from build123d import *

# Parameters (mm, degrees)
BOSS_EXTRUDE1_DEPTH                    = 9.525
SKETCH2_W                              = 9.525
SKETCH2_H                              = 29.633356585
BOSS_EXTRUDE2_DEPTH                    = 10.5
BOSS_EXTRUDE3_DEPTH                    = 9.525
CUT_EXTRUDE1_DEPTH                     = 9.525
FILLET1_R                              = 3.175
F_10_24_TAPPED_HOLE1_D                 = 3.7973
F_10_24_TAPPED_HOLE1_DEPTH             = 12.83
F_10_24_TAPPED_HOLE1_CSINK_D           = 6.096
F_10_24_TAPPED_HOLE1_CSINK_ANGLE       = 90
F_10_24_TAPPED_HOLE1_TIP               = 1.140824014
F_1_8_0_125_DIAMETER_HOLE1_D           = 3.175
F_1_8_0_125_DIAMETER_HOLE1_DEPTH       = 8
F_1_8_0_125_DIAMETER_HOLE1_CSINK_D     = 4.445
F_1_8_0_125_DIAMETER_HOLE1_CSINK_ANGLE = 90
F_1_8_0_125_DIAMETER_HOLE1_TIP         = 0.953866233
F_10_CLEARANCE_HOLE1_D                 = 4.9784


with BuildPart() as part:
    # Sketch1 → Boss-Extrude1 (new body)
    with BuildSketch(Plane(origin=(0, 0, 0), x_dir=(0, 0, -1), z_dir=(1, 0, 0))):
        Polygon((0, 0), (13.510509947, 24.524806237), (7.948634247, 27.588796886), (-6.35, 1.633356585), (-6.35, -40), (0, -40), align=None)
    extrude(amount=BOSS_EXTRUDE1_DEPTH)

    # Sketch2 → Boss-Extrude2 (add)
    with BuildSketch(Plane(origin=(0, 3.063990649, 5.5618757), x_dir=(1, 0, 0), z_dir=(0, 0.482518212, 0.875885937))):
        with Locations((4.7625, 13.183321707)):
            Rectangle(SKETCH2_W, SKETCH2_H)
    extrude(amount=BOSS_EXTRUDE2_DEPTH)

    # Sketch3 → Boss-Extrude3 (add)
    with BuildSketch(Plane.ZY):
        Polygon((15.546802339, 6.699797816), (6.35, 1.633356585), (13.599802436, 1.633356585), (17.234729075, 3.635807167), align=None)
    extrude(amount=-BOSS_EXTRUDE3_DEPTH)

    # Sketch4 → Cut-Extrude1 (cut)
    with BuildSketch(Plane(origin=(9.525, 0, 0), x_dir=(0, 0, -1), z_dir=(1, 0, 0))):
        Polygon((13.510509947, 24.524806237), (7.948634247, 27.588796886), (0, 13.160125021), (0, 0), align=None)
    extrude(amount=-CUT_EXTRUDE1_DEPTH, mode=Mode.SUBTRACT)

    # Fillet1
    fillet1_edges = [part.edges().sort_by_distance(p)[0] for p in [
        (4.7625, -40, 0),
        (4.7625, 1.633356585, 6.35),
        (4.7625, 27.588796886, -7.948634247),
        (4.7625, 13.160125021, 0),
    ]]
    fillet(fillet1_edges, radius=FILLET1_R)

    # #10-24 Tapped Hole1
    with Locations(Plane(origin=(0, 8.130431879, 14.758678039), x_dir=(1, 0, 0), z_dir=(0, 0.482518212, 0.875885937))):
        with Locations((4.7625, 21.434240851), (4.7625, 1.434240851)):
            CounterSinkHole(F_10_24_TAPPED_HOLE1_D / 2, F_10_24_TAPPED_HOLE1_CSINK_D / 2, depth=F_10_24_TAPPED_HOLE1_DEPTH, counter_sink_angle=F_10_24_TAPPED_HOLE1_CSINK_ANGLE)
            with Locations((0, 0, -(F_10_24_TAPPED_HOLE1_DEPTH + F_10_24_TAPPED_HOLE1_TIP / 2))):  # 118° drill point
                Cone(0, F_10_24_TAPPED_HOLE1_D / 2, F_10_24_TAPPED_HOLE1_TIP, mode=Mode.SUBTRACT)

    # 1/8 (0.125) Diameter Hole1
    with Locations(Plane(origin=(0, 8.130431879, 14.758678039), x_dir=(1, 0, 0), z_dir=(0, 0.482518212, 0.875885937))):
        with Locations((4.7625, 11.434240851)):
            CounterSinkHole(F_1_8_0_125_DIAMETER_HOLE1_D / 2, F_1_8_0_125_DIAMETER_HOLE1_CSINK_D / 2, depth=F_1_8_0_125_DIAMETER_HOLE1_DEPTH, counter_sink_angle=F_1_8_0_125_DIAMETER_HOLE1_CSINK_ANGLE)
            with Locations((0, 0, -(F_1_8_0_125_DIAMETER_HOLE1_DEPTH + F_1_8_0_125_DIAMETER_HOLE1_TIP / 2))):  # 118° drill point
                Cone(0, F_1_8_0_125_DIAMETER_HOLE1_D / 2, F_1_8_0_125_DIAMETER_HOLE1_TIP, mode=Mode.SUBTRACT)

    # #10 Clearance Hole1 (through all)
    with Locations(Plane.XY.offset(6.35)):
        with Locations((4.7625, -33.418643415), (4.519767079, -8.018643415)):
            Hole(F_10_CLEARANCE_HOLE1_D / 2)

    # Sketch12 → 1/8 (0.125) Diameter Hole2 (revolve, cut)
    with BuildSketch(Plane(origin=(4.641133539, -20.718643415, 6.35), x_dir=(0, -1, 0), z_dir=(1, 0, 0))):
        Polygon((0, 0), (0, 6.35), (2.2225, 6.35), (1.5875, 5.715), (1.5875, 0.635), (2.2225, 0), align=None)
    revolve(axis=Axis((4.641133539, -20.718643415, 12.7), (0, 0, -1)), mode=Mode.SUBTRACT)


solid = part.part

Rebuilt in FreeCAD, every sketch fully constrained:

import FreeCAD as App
import Part
import Sketcher
Q = App.Units.Quantity


def edges_at(feature, points):
    """Names of the edges that pass closest to the given points."""
    edges = feature.Shape.Edges
    near = lambda p: min(range(len(edges)), key=lambda i: edges[i].distToShape(Part.Vertex(*p))[0])
    return sorted({f"Edge{near(p) + 1}" for p in points})


def add_polygon(sketch, points):
    """Adds a closed chain of lines whose ends are joined by coincident constraints."""
    first, n = sketch.GeometryCount, len(points)
    for a, b in zip(points, points[1:] + points[:1]):
        sketch.addGeometry(Part.LineSegment(App.Vector(*a, 0), App.Vector(*b, 0)), False)
    for i in range(n):
        sketch.addConstraint(Sketcher.Constraint("Coincident", first + i, 2, first + (i + 1) % n, 1))

doc = App.newDocument("Part")
params = doc.addObject("Spreadsheet::Sheet", "Params")
for row, (alias, value) in enumerate([
    ("sketch1_height", "0.25 in"),
    ("sketch1_length", "0.25 in"),
    ("pad1_length", "0.375 in"),
    ("sketch2_width", "0.375 in"),
    ("pad2_length", "10.5 mm"),
    ("pad3_length", "0.375 in"),
    ("sketch4_length", "0.25 in"),
    ("pocket1_length", "0.375 in"),
    ("fillet_radius", "0.125 in"),
    ("hole_diameter", "0.1495 in"),
    ("hole_depth", "12.83 mm"),
    ("hole_csink_diameter", "0.24 in"),
    ("sketch6_diameter", "0.125 in"),
    ("hole2_diameter", "0.125 in"),
    ("hole2_depth", "8 mm"),
    ("hole2_csink_diameter", "0.175 in"),
    ("sketch7_diameter", "0.196 in"),
    ("hole3_diameter", "0.196 in"),
    ("sketch8_height", "0.2 in"),
    ("sketch8_height2", "0.25 in"),
    ("groove_angle", "360 deg"),
], start=1):
    params.set(f"A{row}", alias)
    params.set(f"B{row}", "=" + value)
    params.setAlias(f"B{row}", alias)

body = doc.addObject("PartDesign::Body", "Body")

sketch1 = body.newObject("Sketcher::SketchObject", "Sketch")
sketch1.AttachmentSupport = (doc.getObject("YZ_Plane"), [""])
sketch1.MapMode = "FlatFace"
add_polygon(sketch1, [(0, 0), (25, -14), (28, -8), (2, 6), (-40, 6), (-40, 0)])
sketch1.addConstraint([
    Sketcher.Constraint("Horizontal", 3),
    Sketcher.Constraint("Vertical", 4),
    Sketcher.Constraint("Horizontal", 5),
    Sketcher.Constraint("Coincident", 5, 2, -1, 1),
    Sketcher.Constraint("Perpendicular", 0, 1),
    Sketcher.Constraint("Perpendicular", 1, 2),
    Sketcher.Constraint("DistanceY", 4, 2, 4, 1, Q("0.25 in")),
    Sketcher.Constraint("Distance", 1, Q("0.25 in")),
    Sketcher.Constraint("Angle", 0, Q("-28.85 deg")),
    Sketcher.Constraint("DistanceX", 5, 1, 5, 2, 40.0),
    Sketcher.Constraint("Distance", 0, 28.0),
])
sketch1.setExpression("Constraints[12]", "Params.sketch1_height")
sketch1.setExpression("Constraints[13]", "Params.sketch1_length")
pad1 = body.newObject("PartDesign::Pad", "Pad")
pad1.Profile = sketch1
pad1.setExpression("Length", "Params.pad1_length")

sketch2 = body.newObject("Sketcher::SketchObject", "Sketch001")
sketch2.Placement = App.Placement(App.Vector(0, 3.063991, 5.561876), App.Rotation(App.Vector(1, 0, 0), App.Vector(0, 0.875885937, -0.482518212), App.Vector(0, 0.482518212, 0.875885937), "ZXY"))
add_polygon(sketch2, [(0, 28), (0, -2), (10, -2), (10, 28)])
sketch2.addConstraint([
    Sketcher.Constraint("Vertical", 0),
    Sketcher.Constraint("Horizontal", 1),
    Sketcher.Constraint("Vertical", 2),
    Sketcher.Constraint("Horizontal", 3),
    Sketcher.Constraint("PointOnObject", 0, 2, -2),
    Sketcher.Constraint("DistanceX", 1, 1, 1, 2, Q("0.375 in")),
    Sketcher.Constraint("DistanceY", -1, 1, 2, 2, 28.0),
    Sketcher.Constraint("DistanceY", 0, 2, 0, 1, 29.633357),
])
sketch2.setExpression("Constraints[9]", "Params.sketch2_width")
pad2 = body.newObject("PartDesign::Pad", "Pad001")
pad2.Profile = sketch2
pad2.setExpression("Length", "Params.pad2_length")

sketch3 = body.newObject("Sketcher::SketchObject", "Sketch002")
sketch3.AttachmentSupport = (doc.getObject("YZ_Plane"), [""])
sketch3.MapMode = "FlatFace"
add_polygon(sketch3, [(6.7, 15.5), (1.6, 6.3), (1.6, 13.6), (3.6, 17.2)])
sketch3.addConstraint([
    Sketcher.Constraint("Vertical", 1),
    Sketcher.Constraint("Parallel", 0, 2),
    Sketcher.Constraint("Perpendicular", 2, 3),
    Sketcher.Constraint("DistanceY", -1, 1, 0, 2, Q("0.25 in")),
    Sketcher.Constraint("Angle", 0, Q("-118.85 deg")),
    Sketcher.Constraint("Distance", 0, 10.5),
    Sketcher.Constraint("Distance", 2, 4.15),
    Sketcher.Constraint("DistanceX", -1, 1, 0, 2, 1.633357),
])
pad3 = body.newObject("PartDesign::Pad", "Pad002")
pad3.Profile = sketch3
pad3.setExpression("Length", "Params.pad3_length")

sketch4 = body.newObject("Sketcher::SketchObject", "Sketch003")
sketch4.AttachmentSupport = (doc.getObject("YZ_Plane"), [""])
sketch4.MapMode = "FlatFace"
sketch4.AttachmentOffset = App.Placement(App.Vector(0, 0, 0.375 * 25.4), App.Rotation())
add_polygon(sketch4, [(25, -14), (28, -8), (13, 0), (0, 0)])
sketch4.addConstraint([
    Sketcher.Constraint("Horizontal", 2),
    Sketcher.Constraint("Coincident", 2, 2, -1, 1),
    Sketcher.Constraint("Perpendicular", 0, 1),
    Sketcher.Constraint("Parallel", 1, 3),
    Sketcher.Constraint("Distance", 0, Q("0.25 in")),
    Sketcher.Constraint("Angle", 0, Q("61.15 deg")),
    Sketcher.Constraint("Distance", 3, 28.0),
])
sketch4.setExpression("Constraints[8]", "Params.sketch4_length")
pocket1 = body.newObject("PartDesign::Pocket", "Pocket")
pocket1.Profile = sketch4
pocket1.setExpression("Length", "Params.pocket1_length")
doc.recompute()

fillet = body.newObject("PartDesign::Fillet", "Fillet")
fillet.Base = (pocket1, edges_at(pocket1, [
    (4.763, -40, 0),
    (4.763, 1.633, 6.35),
    (4.763, 27.589, -7.949),
    (4.763, 13.16, 0),
]))
fillet.setExpression("Radius", "Params.fillet_radius")

sketch5 = body.newObject("Sketcher::SketchObject", "Sketch004")
sketch5.Placement = App.Placement(App.Vector(0, 8.130432, 14.758678), App.Rotation(App.Vector(1, 0, 0), App.Vector(0, 0.875885937, -0.482518212), App.Vector(0, 0.482518212, 0.875885937), "ZXY"))
sketch5.addGeometry([
    Part.Circle(App.Vector(4.8, 21.4, 0), App.Vector(0, 0, 1), 1.9),
    Part.Circle(App.Vector(4.8, 1.4, 0), App.Vector(0, 0, 1), 1.9),
], False)
sketch5.addConstraint([
    Sketcher.Constraint("Equal", 0, 1),
    Sketcher.Constraint("Vertical", 0, 3, 1, 3),
    Sketcher.Constraint("Diameter", 0, Q("0.1495 in")),
    Sketcher.Constraint("DistanceX", -1, 1, 0, 3, Q("0.1875 in")),
    Sketcher.Constraint("DistanceY", 1, 3, 0, 3, 20.0),
    Sketcher.Constraint("DistanceY", -1, 1, 0, 3, 21.434241),
])
doc.recompute()
hole = body.newObject("PartDesign::Hole", "Hole")
hole.Profile = sketch5
hole.ThreadType = "None"
hole.setExpression("Diameter", "Params.hole_diameter")
hole.DepthType = "Dimension"
hole.setExpression("Depth", "Params.hole_depth")
hole.DrillPoint = "Angled"
hole.DrillPointAngle = 118
hole.HoleCutType = "Countersink"
hole.setExpression("HoleCutDiameter", "Params.hole_csink_diameter")
hole.HoleCutCountersinkAngle = 90

sketch6 = body.newObject("Sketcher::SketchObject", "Sketch005")
sketch6.Placement = App.Placement(App.Vector(0, 8.130432, 14.758678), App.Rotation(App.Vector(1, 0, 0), App.Vector(0, 0.875885937, -0.482518212), App.Vector(0, 0.482518212, 0.875885937), "ZXY"))
sketch6.addGeometry(Part.Circle(App.Vector(4.8, 11.4, 0), App.Vector(0, 0, 1), 1.6), False)
sketch6.addConstraint([
    Sketcher.Constraint("Diameter", 0, Q("0.125 in")),
    Sketcher.Constraint("DistanceX", -1, 1, 0, 3, Q("0.1875 in")),
    Sketcher.Constraint("DistanceY", -1, 1, 0, 3, 11.434241),
])
sketch6.setExpression("Constraints[0]", "Params.sketch6_diameter")
doc.recompute()
hole2 = body.newObject("PartDesign::Hole", "Hole001")
hole2.Profile = sketch6
hole2.ThreadType = "None"
hole2.setExpression("Diameter", "Params.hole2_diameter")
hole2.DepthType = "Dimension"
hole2.setExpression("Depth", "Params.hole2_depth")
hole2.DrillPoint = "Angled"
hole2.DrillPointAngle = 118
hole2.HoleCutType = "Countersink"
hole2.setExpression("HoleCutDiameter", "Params.hole2_csink_diameter")
hole2.HoleCutCountersinkAngle = 90

sketch7 = body.newObject("Sketcher::SketchObject", "Sketch006")
sketch7.AttachmentSupport = (doc.getObject("XY_Plane"), [""])
sketch7.MapMode = "FlatFace"
sketch7.AttachmentOffset = App.Placement(App.Vector(0, 0, 0.25 * 25.4), App.Rotation())
sketch7.addGeometry([
    Part.Circle(App.Vector(4.8, -33.4, 0), App.Vector(0, 0, 1), 2.5),
    Part.Circle(App.Vector(4.5, -8, 0), App.Vector(0, 0, 1), 2.5),
], False)
sketch7.addConstraint([
    Sketcher.Constraint("Equal", 0, 1),
    Sketcher.Constraint("Diameter", 0, Q("0.196 in")),
    Sketcher.Constraint("DistanceY", 0, 3, 1, 3, Q("1 in")),
    Sketcher.Constraint("DistanceX", -1, 1, 0, 3, Q("0.1875 in")),
    Sketcher.Constraint("DistanceY", 0, 3, -1, 1, 33.418643),
    Sketcher.Constraint("DistanceX", -1, 1, 1, 3, 4.519767),
])
sketch7.setExpression("Constraints[1]", "Params.sketch7_diameter")
doc.recompute()
hole3 = body.newObject("PartDesign::Hole", "Hole002")
hole3.Profile = sketch7
hole3.ThreadType = "None"
hole3.setExpression("Diameter", "Params.hole3_diameter")
hole3.DepthType = "ThroughAll"

sketch8 = body.newObject("Sketcher::SketchObject", "Sketch007")
sketch8.AttachmentSupport = (doc.getObject("YZ_Plane"), [""])
sketch8.MapMode = "FlatFace"
sketch8.AttachmentOffset = App.Placement(App.Vector(0, 0, 4.641134), App.Rotation())
add_polygon(sketch8, [(-20.7, 0), (-20.7, 6.3), (-22.9, 6.3), (-22.3, 5.7), (-22.3, 0.6), (-22.9, 0)])
sketch8.addGeometry(Part.LineSegment(App.Vector(-20.7, 6.3, 0), App.Vector(-20.7, 0, 0)), True)
sketch8.addConstraint([
    Sketcher.Constraint("Vertical", 0),
    Sketcher.Constraint("Horizontal", 1),
    Sketcher.Constraint("Vertical", 3),
    Sketcher.Constraint("Horizontal", 5),
    Sketcher.Constraint("Vertical", 6),
    Sketcher.Constraint("Coincident", 6, 1, 0, 2),
    Sketcher.Constraint("PointOnObject", 4, 2, -1),
    Sketcher.Constraint("PointOnObject", 6, 2, -1),
    Sketcher.Constraint("Perpendicular", 2, 4),
    Sketcher.Constraint("Vertical", 1, 2, 4, 2),
    Sketcher.Constraint("Equal", 2, 4),
    Sketcher.Constraint("DistanceY", 3, 2, 3, 1, Q("0.2 in")),
    Sketcher.Constraint("DistanceY", 0, 1, 0, 2, Q("0.25 in")),
    Sketcher.Constraint("DistanceX", 1, 2, 1, 1, Q("0.0875 in")),
    Sketcher.Constraint("DistanceX", 0, 2, -1, 1, 20.718643),
])
sketch8.setExpression("Constraints[17]", "Params.sketch8_height")
sketch8.setExpression("Constraints[18]", "Params.sketch8_height2")
groove = body.newObject("PartDesign::Groove", "Groove")
groove.Profile = sketch8
groove.ReferenceAxis = (sketch8, ["Axis0"])
groove.setExpression("Angle", "Params.groove_angle")

doc.recompute()
